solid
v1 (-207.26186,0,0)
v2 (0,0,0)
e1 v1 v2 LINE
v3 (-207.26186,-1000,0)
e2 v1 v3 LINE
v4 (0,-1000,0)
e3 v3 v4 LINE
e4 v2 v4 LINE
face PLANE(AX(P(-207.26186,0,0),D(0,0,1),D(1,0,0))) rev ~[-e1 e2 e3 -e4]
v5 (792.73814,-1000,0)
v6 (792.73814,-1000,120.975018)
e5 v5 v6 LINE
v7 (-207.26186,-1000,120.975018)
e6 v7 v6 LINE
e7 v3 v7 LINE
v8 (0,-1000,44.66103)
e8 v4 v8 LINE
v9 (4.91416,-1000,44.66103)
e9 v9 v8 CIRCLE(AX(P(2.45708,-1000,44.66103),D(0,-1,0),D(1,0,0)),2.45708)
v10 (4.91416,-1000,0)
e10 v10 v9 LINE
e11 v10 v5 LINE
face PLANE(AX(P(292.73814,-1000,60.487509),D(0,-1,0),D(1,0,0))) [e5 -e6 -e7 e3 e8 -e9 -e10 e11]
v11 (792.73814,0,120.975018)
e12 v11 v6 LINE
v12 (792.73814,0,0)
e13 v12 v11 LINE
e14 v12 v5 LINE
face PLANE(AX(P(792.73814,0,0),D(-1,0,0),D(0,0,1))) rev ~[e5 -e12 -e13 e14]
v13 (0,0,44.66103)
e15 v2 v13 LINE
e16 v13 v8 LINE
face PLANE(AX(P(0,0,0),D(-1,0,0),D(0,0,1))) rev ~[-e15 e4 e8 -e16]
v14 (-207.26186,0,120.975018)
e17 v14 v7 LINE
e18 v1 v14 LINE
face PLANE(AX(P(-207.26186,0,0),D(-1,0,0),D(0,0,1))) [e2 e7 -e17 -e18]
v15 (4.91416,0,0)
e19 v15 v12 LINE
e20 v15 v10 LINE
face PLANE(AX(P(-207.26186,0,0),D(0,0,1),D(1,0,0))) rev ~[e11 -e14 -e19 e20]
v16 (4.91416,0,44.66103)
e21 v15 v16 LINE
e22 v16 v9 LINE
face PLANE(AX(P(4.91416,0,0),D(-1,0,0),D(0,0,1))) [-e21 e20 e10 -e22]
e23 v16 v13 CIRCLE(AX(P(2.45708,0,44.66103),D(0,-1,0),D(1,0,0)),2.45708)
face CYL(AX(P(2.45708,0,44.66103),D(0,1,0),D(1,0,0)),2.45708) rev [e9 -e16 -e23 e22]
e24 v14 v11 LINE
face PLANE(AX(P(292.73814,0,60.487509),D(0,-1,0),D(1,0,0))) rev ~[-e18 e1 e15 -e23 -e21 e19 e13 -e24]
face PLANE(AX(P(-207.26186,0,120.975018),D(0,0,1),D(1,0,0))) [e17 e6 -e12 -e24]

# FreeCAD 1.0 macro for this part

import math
import FreeCAD as App
import Part
import Sketcher

V = App.Vector

doc = App.newDocument("Part")
body = doc.addObject("PartDesign::Body", "Body")

sketch1 = doc.addObject("Sketcher::SketchObject", "Sketch")
body.addObject(sketch1)
sketch1.AttachmentSupport = (doc.XZ_Plane, [""])
sketch1.MapMode = "FlatFace"
sketch1.addGeometry(Part.LineSegment(V(-207, 121, 0), V(-207, 0, 0)), False)
sketch1.addGeometry(Part.LineSegment(V(-207, 0, 0), V(793, 0, 0)), False)
sketch1.addGeometry(Part.LineSegment(V(793, 0, 0), V(793, 121, 0)), False)
sketch1.addGeometry(Part.LineSegment(V(793, 121, 0), V(-207, 121, 0)), False)
sketch1.addConstraint(Sketcher.Constraint("Coincident", 0, 2, 1, 1))
sketch1.addConstraint(Sketcher.Constraint("Coincident", 1, 2, 2, 1))
sketch1.addConstraint(Sketcher.Constraint("Coincident", 2, 2, 3, 1))
sketch1.addConstraint(Sketcher.Constraint("Coincident", 3, 2, 0, 1))
sketch1.addConstraint(Sketcher.Constraint("Vertical", 0))
sketch1.addConstraint(Sketcher.Constraint("Horizontal", 1))
sketch1.addConstraint(Sketcher.Constraint("Vertical", 2))
sketch1.addConstraint(Sketcher.Constraint("Horizontal", 3))
sketch1.addConstraint(Sketcher.Constraint("PointOnObject", 0, 2, -1))
sketch1.addConstraint(Sketcher.Constraint("DistanceX", 1, 1, 1, 2, 1000.0))
sketch1.addConstraint(Sketcher.Constraint("DistanceY", 0, 2, 0, 1, 120.975018))
sketch1.addConstraint(Sketcher.Constraint("DistanceX", 0, 2, -1, 1, 207.26186))
pad1 = doc.addObject("PartDesign::Pad", "Pad")
body.addObject(pad1)
pad1.Profile = sketch1
pad1.Length = 1000

sketch2 = doc.addObject("Sketcher::SketchObject", "Sketch001")
body.addObject(sketch2)
sketch2.AttachmentSupport = (doc.XZ_Plane, [""])
sketch2.MapMode = "FlatFace"
sketch2.addGeometry(Part.LineSegment(V(0, 44.7, 0), V(0, 0, 0)), False)
sketch2.addGeometry(Part.LineSegment(V(0, 0, 0), V(4.9, 0, 0)), False)
sketch2.addGeometry(Part.LineSegment(V(4.9, 0, 0), V(4.9, 44.7, 0)), False)
sketch2.addGeometry(Part.ArcOfCircle(Part.Circle(V(2.5, 44.7, 0), V(0, 0, 1), 2.5), math.radians(0), math.radians(180)), False)
sketch2.addConstraint(Sketcher.Constraint("Coincident", 0, 2, 1, 1))
sketch2.addConstraint(Sketcher.Constraint("Coincident", 1, 2, 2, 1))
sketch2.addConstraint(Sketcher.Constraint("Tangent", 2, 2, 3, 1))
sketch2.addConstraint(Sketcher.Constraint("Tangent", 3, 2, 0, 1))
sketch2.addConstraint(Sketcher.Constraint("Vertical", 0))
sketch2.addConstraint(Sketcher.Constraint("Horizontal", 1))
sketch2.addConstraint(Sketcher.Constraint("Vertical", 2))
sketch2.addConstraint(Sketcher.Constraint("Coincident", 0, 2, -1, 1))
sketch2.addConstraint(Sketcher.Constraint("Radius", 3, 2.45708))
sketch2.addConstraint(Sketcher.Constraint("DistanceY", 0, 2, 0, 1, 44.66103))
pocket1 = doc.addObject("PartDesign::Pocket", "Pocket")
body.addObject(pocket1)
pocket1.Profile = sketch2
pocket1.Length = 1000
pocket1.Reversed = True

doc.recompute()
